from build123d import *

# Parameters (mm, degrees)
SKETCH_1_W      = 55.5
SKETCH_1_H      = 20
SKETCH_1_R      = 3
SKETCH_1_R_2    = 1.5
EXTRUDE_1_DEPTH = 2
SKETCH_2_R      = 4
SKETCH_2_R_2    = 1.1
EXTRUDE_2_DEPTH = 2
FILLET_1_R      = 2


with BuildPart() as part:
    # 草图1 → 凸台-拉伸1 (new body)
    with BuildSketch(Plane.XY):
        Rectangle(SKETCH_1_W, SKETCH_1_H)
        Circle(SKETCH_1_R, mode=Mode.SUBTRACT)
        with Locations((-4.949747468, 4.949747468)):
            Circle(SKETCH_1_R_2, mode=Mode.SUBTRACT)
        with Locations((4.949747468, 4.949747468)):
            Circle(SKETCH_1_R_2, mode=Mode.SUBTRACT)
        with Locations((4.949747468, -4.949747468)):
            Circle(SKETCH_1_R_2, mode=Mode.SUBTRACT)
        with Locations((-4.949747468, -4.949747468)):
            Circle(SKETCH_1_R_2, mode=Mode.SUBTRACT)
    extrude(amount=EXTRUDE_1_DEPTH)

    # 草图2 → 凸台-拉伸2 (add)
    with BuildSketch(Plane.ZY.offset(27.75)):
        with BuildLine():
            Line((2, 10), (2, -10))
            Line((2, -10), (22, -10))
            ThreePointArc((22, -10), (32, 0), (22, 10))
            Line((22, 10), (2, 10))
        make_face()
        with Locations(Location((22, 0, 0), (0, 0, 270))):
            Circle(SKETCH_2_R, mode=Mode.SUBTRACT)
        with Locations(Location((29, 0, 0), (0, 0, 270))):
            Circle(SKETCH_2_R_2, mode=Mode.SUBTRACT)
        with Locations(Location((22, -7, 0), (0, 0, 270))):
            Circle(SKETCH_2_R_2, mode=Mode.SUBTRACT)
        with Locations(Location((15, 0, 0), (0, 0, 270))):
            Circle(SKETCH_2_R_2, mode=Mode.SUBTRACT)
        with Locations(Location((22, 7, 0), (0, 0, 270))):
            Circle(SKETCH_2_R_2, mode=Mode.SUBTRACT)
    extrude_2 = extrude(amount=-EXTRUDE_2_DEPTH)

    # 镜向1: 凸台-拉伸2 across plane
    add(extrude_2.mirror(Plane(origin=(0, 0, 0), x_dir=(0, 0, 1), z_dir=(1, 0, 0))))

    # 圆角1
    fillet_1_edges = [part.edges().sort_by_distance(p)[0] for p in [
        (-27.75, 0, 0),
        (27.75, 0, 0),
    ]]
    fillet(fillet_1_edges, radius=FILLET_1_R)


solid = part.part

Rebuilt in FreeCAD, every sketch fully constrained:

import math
import FreeCAD as App
import Part
import Sketcher
from FreeCAD import Vector


def edges_at(feature, points):
    """Names of the edges that pass closest to the given points."""
    edges = feature.Shape.Edges
    near = lambda p: min(range(len(edges)), key=lambda i: edges[i].distToShape(Part.Vertex(*p))[0])
    return sorted({f"Edge{near(p) + 1}" for p in points})


def add_polygon(sketch, points):
    """Adds a closed chain of lines whose ends are joined by coincident constraints."""
    first, n = sketch.GeometryCount, len(points)
    for a, b in zip(points, points[1:] + points[:1]):
        sketch.addGeometry(Part.LineSegment(App.Vector(*a, 0), App.Vector(*b, 0)), False)
    for i in range(n):
        sketch.addConstraint(Sketcher.Constraint("Coincident", first + i, 2, first + (i + 1) % n, 1))

doc = App.newDocument("Part")
params = doc.addObject("Spreadsheet::Sheet", "Params")
for row, (alias, value) in enumerate([
    ("sketch1_diameter", "3 mm"),
    ("sketch1_diameter2", "6 mm"),
    ("sketch1_height", "20 mm"),
    ("sketch1_width", "55.5 mm"),
    ("pad1_length", "2 mm"),
    ("sketch2_diameter", "8 mm"),
    ("sketch2_radius", "10 mm"),
    ("sketch2_diameter2", "2.2 mm"),
    ("pad2_length", "2 mm"),
    ("fillet_radius", "2 mm"),
], start=1):
    params.set(f"A{row}", alias)
    params.set(f"B{row}", "=" + value)
    params.setAlias(f"B{row}", alias)

body = doc.addObject("PartDesign::Body", "Body")

# Sketch on XY plane
sketch1 = doc.addObject("Sketcher::SketchObject", "Sketch")
body.addObject(sketch1)
sketch1.AttachmentSupport = (doc.XY_Plane, [""])
sketch1.MapMode = "FlatFace"
add_polygon(sketch1, [(-27.75, 10), (-27.75, -10), (27.75, -10), (27.75, 10)])  # lines 0-3
sketch1.addGeometry(Part.Circle(Vector(-4.949747, -4.949747, 0), Vector(0, 0, 1), 1.5), False)  # 4
sketch1.addGeometry(Part.Circle(Vector(4.949747, -4.949747, 0), Vector(0, 0, 1), 1.5), False)  # 5
sketch1.addGeometry(Part.Circle(Vector(-4.949747, 4.949747, 0), Vector(0, 0, 1), 1.5), False)  # 6
sketch1.addGeometry(Part.Circle(Vector(0, 0, 0), Vector(0, 0, 1), 3), False)  # 7
sketch1.addGeometry(Part.Circle(Vector(4.949747, 4.949747, 0), Vector(0, 0, 1), 1.5), False)  # 8
sketch1.addConstraint(Sketcher.Constraint("Vertical", 0))
sketch1.addConstraint(Sketcher.Constraint("Horizontal", 1))
sketch1.addConstraint(Sketcher.Constraint("Vertical", 2))
sketch1.addConstraint(Sketcher.Constraint("Horizontal", 3))
sketch1.addConstraint(Sketcher.Constraint("Coincident", 7, 3, -1, 1))
sketch1.addConstraint(Sketcher.Constraint("Equal", 4, 5))
sketch1.addConstraint(Sketcher.Constraint("Equal", 5, 6))
sketch1.addConstraint(Sketcher.Constraint("Equal", 6, 8))
sketch1.addConstraint(Sketcher.Constraint("Symmetric", 5, 3, 6, 3, -1, 1))
sketch1.addConstraint(Sketcher.Constraint("Symmetric", 4, 3, 8, 3, -1, 1))
sketch1.addConstraint(Sketcher.Constraint("Symmetric", 0, 2, 2, 2, -1, 1))
sketch1.addConstraint(Sketcher.Constraint("Symmetric", 4, 3, 5, 3, -2))
sketch1.addConstraint(Sketcher.Constraint("Diameter", 4, 3.0))
sketch1.addConstraint(Sketcher.Constraint("Diameter", 7, 6.0))
sketch1.addConstraint(Sketcher.Constraint("DistanceY", 0, 2, 0, 1, 20.0))
sketch1.addConstraint(Sketcher.Constraint("DistanceX", 1, 1, 1, 2, 55.5))
sketch1.addConstraint(Sketcher.Constraint("DistanceX", 4, 3, -1, 1, 4.949747))
sketch1.addConstraint(Sketcher.Constraint("DistanceY", 4, 3, -1, 1, 4.949747))
sketch1.setExpression("Constraints[16]", "Params.sketch1_diameter")
sketch1.setExpression("Constraints[17]", "Params.sketch1_diameter2")
sketch1.setExpression("Constraints[18]", "Params.sketch1_height")
sketch1.setExpression("Constraints[19]", "Params.sketch1_width")
pad1 = doc.addObject("PartDesign::Pad", "Pad")
body.addObject(pad1)
pad1.Profile = sketch1
pad1.setExpression("Length", "Params.pad1_length")

# Sketch on YZ plane
sketch2 = doc.addObject("Sketcher::SketchObject", "Sketch001")
body.addObject(sketch2)
sketch2.AttachmentSupport = (doc.YZ_Plane, [""])
sketch2.MapMode = "FlatFace"
sketch2.AttachmentOffset = App.Placement(Vector(0, 0, -27.75), App.Rotation())
sketch2.addGeometry(Part.LineSegment(Vector(10, 2, 0), Vector(-10, 2, 0)), False)
sketch2.addGeometry(Part.LineSegment(Vector(-10, 2, 0), Vector(-10, 22, 0)), False)
sketch2.addGeometry(Part.ArcOfCircle(Part.Circle(Vector(0, 22, 0), Vector(0, 0, 1), 10), math.radians(0), math.radians(180)), False)
sketch2.addGeometry(Part.LineSegment(Vector(10, 22, 0), Vector(10, 2, 0)), False)
sketch2.addGeometry(Part.Circle(Vector(-7, 22, 0), Vector(0, 0, 1), 1.1), False)
sketch2.addGeometry(Part.Circle(Vector(0, 15, 0), Vector(0, 0, 1), 1.1), False)
sketch2.addGeometry(Part.Circle(Vector(0, 22, 0), Vector(0, 0, 1), 4), False)
sketch2.addGeometry(Part.Circle(Vector(0, 29, 0), Vector(0, 0, 1), 1.1), False)
sketch2.addGeometry(Part.Circle(Vector(7, 22, 0), Vector(0, 0, 1), 1.1), False)
sketch2.addConstraint(Sketcher.Constraint("Coincident", 0, 2, 1, 1))
sketch2.addConstraint(Sketcher.Constraint("Tangent", 1, 2, 2, 2))
sketch2.addConstraint(Sketcher.Constraint("Tangent", 2, 1, 3, 1))
sketch2.addConstraint(Sketcher.Constraint("Coincident", 3, 2, 0, 1))
sketch2.addConstraint(Sketcher.Constraint("Horizontal", 0))
sketch2.addConstraint(Sketcher.Constraint("Vertical", 1))
sketch2.addConstraint(Sketcher.Constraint("Vertical", 3))
sketch2.addConstraint(Sketcher.Constraint("Coincident", 6, 3, 2, 3))
sketch2.addConstraint(Sketcher.Constraint("Equal", 4, 5))
sketch2.addConstraint(Sketcher.Constraint("Equal", 5, 7))
sketch2.addConstraint(Sketcher.Constraint("Equal", 7, 8))
sketch2.addConstraint(Sketcher.Constraint("Symmetric", 4, 3, 8, 3, -2))
sketch2.addConstraint(Sketcher.Constraint("PointOnObject", 2, 3, -2))
sketch2.addConstraint(Sketcher.Constraint("PointOnObject", 5, 3, -2))
sketch2.addConstraint(Sketcher.Constraint("PointOnObject", 7, 3, -2))
sketch2.addConstraint(Sketcher.Constraint("Horizontal", 2, 3, 4, 3))
sketch2.addConstraint(Sketcher.Constraint("Equal", 0, 1))
sketch2.addConstraint(Sketcher.Constraint("Diameter", 6, 8.0))
sketch2.addConstraint(Sketcher.Constraint("Radius", 2, 10.0))
sketch2.addConstraint(Sketcher.Constraint("Diameter", 4, 2.2))
sketch2.addConstraint(Sketcher.Constraint("DistanceY", -1, 1, 2, 3, 22.0))
sketch2.addConstraint(Sketcher.Constraint("DistanceX", 4, 3, -1, 1, 7.0))
sketch2.addConstraint(Sketcher.Constraint("DistanceY", -1, 1, 5, 3, 15.0))
sketch2.addConstraint(Sketcher.Constraint("DistanceY", -1, 1, 7, 3, 29.0))
sketch2.setExpression("Constraints[17]", "Params.sketch2_diameter")
sketch2.setExpression("Constraints[18]", "Params.sketch2_radius")
sketch2.setExpression("Constraints[19]", "Params.sketch2_diameter2")
pad2 = doc.addObject("PartDesign::Pad", "Pad001")
body.addObject(pad2)
pad2.Profile = sketch2
pad2.setExpression("Length", "Params.pad2_length")
doc.recompute()

mirrored = doc.addObject("PartDesign::Mirrored", "Mirrored")
body.addObject(mirrored)
mirrored.Originals = [pad2]
mirrored.MirrorPlane = (doc.YZ_Plane, [""])
body.Tip = mirrored
doc.recompute()

fillet = doc.addObject("PartDesign::Fillet", "Fillet")
body.addObject(fillet)
fillet.Base = (mirrored, edges_at(mirrored, [(-27.75, 0, 0), (27.75, 0, 0)]))
fillet.setExpression("Radius", "Params.fillet_radius")

doc.recompute()
